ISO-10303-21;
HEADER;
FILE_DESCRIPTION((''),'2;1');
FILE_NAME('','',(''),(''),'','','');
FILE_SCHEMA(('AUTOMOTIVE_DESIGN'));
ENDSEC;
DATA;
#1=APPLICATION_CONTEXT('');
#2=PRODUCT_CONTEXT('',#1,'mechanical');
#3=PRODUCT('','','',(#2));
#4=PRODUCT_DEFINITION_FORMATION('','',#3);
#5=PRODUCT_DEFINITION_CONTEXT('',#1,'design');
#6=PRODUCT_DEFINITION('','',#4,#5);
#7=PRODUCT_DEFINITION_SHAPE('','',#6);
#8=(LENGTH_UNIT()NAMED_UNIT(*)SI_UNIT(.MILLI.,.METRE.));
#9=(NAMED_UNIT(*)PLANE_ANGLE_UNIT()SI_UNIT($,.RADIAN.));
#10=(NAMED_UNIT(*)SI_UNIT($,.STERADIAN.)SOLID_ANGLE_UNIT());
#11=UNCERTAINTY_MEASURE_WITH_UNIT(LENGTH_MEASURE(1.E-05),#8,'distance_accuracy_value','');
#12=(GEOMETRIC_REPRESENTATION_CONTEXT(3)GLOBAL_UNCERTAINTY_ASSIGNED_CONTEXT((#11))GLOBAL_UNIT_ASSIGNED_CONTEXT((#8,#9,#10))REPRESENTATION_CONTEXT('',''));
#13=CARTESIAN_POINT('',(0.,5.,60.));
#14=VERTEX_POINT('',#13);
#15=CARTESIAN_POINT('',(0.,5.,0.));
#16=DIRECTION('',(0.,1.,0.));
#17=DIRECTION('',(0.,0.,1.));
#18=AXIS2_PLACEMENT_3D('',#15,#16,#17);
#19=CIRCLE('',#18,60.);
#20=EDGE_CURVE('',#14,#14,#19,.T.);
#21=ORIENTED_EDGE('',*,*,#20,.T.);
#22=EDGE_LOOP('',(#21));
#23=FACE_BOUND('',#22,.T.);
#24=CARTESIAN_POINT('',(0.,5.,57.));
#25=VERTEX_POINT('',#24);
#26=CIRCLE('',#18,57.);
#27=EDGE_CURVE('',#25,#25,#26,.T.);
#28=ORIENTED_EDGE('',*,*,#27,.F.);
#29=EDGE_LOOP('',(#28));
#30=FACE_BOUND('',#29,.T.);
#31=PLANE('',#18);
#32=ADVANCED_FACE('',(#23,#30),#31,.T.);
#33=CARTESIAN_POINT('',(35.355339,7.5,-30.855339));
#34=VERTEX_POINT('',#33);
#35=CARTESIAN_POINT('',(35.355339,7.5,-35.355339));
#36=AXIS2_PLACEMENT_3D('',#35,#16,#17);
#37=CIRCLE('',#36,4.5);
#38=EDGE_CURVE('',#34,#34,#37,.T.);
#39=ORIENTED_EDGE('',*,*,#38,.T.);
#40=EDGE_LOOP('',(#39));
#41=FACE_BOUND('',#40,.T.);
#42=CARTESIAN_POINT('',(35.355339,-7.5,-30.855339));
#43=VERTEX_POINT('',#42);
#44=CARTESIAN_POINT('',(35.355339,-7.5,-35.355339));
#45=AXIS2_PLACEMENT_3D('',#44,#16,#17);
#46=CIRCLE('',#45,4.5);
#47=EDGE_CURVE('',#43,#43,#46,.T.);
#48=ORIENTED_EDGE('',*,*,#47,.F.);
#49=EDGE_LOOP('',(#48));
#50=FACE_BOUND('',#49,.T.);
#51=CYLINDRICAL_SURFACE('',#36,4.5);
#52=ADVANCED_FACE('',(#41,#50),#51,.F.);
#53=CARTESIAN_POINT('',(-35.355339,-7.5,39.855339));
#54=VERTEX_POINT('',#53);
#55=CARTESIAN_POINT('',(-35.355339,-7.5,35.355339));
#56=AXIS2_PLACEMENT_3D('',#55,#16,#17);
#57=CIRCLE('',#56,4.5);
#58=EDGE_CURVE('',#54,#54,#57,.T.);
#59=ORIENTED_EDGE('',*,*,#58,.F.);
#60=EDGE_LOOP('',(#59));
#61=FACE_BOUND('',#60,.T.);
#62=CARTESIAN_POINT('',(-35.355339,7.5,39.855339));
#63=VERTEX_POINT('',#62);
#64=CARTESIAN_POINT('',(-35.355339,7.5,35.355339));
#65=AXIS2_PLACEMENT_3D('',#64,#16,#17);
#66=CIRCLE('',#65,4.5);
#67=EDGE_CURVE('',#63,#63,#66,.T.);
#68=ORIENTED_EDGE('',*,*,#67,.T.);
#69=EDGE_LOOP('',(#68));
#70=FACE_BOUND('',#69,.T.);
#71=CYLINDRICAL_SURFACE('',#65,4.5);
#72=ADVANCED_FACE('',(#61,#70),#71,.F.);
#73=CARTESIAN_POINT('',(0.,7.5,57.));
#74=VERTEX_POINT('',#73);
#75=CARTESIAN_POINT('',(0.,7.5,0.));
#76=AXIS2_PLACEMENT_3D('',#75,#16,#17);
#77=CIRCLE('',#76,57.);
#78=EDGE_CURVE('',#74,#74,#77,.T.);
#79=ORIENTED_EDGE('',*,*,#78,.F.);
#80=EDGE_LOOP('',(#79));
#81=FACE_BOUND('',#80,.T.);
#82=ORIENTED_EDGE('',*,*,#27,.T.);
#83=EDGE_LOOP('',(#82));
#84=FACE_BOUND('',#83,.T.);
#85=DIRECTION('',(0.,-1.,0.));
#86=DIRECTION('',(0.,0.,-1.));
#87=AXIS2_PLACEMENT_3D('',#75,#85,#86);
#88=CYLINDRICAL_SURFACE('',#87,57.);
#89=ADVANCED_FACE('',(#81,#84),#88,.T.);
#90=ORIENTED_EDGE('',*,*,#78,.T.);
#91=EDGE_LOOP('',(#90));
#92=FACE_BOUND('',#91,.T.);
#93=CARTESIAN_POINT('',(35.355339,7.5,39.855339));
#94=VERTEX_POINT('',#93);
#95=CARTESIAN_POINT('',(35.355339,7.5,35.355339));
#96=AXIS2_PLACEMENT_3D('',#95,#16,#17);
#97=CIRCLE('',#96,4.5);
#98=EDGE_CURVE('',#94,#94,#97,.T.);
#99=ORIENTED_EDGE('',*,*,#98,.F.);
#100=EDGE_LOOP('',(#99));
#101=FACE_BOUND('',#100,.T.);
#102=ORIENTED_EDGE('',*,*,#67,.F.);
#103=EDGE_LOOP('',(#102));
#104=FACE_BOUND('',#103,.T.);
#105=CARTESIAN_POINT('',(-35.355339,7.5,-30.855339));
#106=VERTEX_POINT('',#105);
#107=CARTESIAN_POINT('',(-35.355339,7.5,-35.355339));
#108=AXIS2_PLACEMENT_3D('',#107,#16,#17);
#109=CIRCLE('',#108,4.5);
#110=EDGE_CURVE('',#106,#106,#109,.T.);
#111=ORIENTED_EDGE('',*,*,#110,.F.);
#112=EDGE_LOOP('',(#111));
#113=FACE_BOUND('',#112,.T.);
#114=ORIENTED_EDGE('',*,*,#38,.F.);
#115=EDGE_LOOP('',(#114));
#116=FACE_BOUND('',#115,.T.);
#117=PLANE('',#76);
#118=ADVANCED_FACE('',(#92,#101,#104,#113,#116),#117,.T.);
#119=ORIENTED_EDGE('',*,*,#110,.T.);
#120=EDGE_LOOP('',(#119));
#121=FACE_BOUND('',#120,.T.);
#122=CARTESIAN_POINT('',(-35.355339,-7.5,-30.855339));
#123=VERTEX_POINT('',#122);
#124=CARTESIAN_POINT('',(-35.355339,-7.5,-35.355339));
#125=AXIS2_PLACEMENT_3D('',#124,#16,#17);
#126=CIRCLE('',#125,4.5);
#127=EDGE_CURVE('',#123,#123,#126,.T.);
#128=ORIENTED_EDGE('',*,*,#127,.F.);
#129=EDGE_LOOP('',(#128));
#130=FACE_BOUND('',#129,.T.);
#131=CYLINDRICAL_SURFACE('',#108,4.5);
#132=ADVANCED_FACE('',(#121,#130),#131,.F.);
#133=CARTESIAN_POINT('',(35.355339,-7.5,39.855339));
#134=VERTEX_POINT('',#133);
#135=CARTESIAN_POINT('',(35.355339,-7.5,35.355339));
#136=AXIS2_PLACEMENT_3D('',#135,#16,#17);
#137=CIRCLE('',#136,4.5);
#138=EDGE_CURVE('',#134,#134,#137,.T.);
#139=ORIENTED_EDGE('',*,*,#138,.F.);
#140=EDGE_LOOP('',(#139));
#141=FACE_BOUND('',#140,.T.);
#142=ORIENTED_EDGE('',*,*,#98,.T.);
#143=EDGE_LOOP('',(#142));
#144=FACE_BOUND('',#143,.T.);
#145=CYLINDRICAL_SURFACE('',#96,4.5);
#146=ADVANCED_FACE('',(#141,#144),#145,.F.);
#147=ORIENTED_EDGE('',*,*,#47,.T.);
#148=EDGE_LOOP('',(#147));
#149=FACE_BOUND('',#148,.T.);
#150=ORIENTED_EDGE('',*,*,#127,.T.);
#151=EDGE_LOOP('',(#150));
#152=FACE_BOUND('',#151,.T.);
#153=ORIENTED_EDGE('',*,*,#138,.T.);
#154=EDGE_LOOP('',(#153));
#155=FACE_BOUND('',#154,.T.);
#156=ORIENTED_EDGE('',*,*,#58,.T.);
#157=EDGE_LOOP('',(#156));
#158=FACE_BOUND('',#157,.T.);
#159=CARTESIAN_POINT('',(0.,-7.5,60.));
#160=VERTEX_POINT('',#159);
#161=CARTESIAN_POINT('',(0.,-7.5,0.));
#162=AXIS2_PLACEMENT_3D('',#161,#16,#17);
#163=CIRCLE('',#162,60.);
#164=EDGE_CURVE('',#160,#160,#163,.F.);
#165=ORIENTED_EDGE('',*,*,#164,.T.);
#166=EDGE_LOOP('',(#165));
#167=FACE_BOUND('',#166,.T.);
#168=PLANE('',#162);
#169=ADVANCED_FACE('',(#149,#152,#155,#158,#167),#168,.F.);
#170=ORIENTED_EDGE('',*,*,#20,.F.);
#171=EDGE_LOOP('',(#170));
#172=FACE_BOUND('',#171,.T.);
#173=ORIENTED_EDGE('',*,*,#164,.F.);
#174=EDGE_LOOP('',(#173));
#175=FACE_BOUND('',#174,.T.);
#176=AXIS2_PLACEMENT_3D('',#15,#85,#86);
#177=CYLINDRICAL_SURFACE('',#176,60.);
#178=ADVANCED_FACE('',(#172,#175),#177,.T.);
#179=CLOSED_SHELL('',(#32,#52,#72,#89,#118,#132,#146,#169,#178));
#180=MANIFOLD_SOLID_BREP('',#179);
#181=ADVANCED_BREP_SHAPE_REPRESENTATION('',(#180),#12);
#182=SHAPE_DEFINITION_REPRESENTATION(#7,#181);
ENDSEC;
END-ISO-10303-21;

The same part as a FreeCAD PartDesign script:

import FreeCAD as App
import Part
import Sketcher

V = App.Vector
Q = App.Units.Quantity

doc = App.newDocument("Part")
body = doc.addObject("PartDesign::Body", "Body")

sketch1 = doc.addObject("Sketcher::SketchObject", "Sketch")
body.addObject(sketch1)
sketch1.AttachmentSupport = (doc.XZ_Plane, [""])
sketch1.MapMode = "FlatFace"
sketch1.addGeometry(Part.Circle(V(0, 0, 0), V(0, 0, 1), 57), False)
sketch1.addConstraint([
    Sketcher.Constraint("Coincident", 0, 3, -1, 1),
    Sketcher.Constraint("Diameter", 0, Q("114 mm")),
])
pad1 = doc.addObject("PartDesign::Pad", "Pad")
body.addObject(pad1)
pad1.Profile = sketch1
pad1.Length = 15
pad1.Midplane = True

sketch2 = doc.addObject("Sketcher::SketchObject", "Sketch001")
body.addObject(sketch2)
sketch2.AttachmentSupport = (doc.XZ_Plane, [""])
sketch2.MapMode = "FlatFace"
sketch2.addGeometry([
    Part.Circle(V(0, 0, 0), V(0, 0, 1), 60),
    Part.Circle(V(0, 0, 0), V(0, 0, 1), 57),
], False)
sketch2.addConstraint([
    Sketcher.Constraint("Coincident", 0, 3, -1, 1),
    Sketcher.Constraint("Coincident", 1, 3, -1, 1),
    Sketcher.Constraint("Diameter", 0, Q("120 mm")),
    Sketcher.Constraint("Diameter", 1, Q("114 mm")),
])
pad2 = doc.addObject("PartDesign::Pad", "Pad001")
body.addObject(pad2)
pad2.Profile = sketch2
pad2.Type = "TwoLengths"
pad2.Length = 5
pad2.Length2 = 7.5
pad2.Reversed = True

sketch3 = doc.addObject("Sketcher::SketchObject", "Sketch002")
body.addObject(sketch3)
sketch3.AttachmentSupport = (doc.XZ_Plane, [""])
sketch3.MapMode = "FlatFace"
sketch3.AttachmentOffset = App.Placement(V(0, 0, -7.5), App.Rotation())
sketch3.addGeometry(Part.Circle(V(-35.4, 35.4, 0), V(0, 0, 1), 4.5), False)
sketch3.addConstraint([
    Sketcher.Constraint("Diameter", 0, Q("9 mm")),
    Sketcher.Constraint("DistanceX", 0, 3, -1, 1, Q("35.355339 mm")),
    Sketcher.Constraint("DistanceY", -1, 1, 0, 3, Q("35.355339 mm")),
])
doc.recompute()
hole = doc.addObject("PartDesign::Hole", "Hole")
body.addObject(hole)
hole.Profile = sketch3
hole.ThreadType = "None"
hole.Diameter = 9
hole.DepthType = "ThroughAll"
hole.Reversed = True
doc.recompute()

polarpattern = doc.addObject("PartDesign::PolarPattern", "PolarPattern")
body.addObject(polarpattern)
polarpattern.Originals = [hole]
polarpattern.Axis = (doc.Y_Axis, [""])
polarpattern.Angle = 360
polarpattern.Occurrences = 4
body.Tip = polarpattern

doc.recompute()
